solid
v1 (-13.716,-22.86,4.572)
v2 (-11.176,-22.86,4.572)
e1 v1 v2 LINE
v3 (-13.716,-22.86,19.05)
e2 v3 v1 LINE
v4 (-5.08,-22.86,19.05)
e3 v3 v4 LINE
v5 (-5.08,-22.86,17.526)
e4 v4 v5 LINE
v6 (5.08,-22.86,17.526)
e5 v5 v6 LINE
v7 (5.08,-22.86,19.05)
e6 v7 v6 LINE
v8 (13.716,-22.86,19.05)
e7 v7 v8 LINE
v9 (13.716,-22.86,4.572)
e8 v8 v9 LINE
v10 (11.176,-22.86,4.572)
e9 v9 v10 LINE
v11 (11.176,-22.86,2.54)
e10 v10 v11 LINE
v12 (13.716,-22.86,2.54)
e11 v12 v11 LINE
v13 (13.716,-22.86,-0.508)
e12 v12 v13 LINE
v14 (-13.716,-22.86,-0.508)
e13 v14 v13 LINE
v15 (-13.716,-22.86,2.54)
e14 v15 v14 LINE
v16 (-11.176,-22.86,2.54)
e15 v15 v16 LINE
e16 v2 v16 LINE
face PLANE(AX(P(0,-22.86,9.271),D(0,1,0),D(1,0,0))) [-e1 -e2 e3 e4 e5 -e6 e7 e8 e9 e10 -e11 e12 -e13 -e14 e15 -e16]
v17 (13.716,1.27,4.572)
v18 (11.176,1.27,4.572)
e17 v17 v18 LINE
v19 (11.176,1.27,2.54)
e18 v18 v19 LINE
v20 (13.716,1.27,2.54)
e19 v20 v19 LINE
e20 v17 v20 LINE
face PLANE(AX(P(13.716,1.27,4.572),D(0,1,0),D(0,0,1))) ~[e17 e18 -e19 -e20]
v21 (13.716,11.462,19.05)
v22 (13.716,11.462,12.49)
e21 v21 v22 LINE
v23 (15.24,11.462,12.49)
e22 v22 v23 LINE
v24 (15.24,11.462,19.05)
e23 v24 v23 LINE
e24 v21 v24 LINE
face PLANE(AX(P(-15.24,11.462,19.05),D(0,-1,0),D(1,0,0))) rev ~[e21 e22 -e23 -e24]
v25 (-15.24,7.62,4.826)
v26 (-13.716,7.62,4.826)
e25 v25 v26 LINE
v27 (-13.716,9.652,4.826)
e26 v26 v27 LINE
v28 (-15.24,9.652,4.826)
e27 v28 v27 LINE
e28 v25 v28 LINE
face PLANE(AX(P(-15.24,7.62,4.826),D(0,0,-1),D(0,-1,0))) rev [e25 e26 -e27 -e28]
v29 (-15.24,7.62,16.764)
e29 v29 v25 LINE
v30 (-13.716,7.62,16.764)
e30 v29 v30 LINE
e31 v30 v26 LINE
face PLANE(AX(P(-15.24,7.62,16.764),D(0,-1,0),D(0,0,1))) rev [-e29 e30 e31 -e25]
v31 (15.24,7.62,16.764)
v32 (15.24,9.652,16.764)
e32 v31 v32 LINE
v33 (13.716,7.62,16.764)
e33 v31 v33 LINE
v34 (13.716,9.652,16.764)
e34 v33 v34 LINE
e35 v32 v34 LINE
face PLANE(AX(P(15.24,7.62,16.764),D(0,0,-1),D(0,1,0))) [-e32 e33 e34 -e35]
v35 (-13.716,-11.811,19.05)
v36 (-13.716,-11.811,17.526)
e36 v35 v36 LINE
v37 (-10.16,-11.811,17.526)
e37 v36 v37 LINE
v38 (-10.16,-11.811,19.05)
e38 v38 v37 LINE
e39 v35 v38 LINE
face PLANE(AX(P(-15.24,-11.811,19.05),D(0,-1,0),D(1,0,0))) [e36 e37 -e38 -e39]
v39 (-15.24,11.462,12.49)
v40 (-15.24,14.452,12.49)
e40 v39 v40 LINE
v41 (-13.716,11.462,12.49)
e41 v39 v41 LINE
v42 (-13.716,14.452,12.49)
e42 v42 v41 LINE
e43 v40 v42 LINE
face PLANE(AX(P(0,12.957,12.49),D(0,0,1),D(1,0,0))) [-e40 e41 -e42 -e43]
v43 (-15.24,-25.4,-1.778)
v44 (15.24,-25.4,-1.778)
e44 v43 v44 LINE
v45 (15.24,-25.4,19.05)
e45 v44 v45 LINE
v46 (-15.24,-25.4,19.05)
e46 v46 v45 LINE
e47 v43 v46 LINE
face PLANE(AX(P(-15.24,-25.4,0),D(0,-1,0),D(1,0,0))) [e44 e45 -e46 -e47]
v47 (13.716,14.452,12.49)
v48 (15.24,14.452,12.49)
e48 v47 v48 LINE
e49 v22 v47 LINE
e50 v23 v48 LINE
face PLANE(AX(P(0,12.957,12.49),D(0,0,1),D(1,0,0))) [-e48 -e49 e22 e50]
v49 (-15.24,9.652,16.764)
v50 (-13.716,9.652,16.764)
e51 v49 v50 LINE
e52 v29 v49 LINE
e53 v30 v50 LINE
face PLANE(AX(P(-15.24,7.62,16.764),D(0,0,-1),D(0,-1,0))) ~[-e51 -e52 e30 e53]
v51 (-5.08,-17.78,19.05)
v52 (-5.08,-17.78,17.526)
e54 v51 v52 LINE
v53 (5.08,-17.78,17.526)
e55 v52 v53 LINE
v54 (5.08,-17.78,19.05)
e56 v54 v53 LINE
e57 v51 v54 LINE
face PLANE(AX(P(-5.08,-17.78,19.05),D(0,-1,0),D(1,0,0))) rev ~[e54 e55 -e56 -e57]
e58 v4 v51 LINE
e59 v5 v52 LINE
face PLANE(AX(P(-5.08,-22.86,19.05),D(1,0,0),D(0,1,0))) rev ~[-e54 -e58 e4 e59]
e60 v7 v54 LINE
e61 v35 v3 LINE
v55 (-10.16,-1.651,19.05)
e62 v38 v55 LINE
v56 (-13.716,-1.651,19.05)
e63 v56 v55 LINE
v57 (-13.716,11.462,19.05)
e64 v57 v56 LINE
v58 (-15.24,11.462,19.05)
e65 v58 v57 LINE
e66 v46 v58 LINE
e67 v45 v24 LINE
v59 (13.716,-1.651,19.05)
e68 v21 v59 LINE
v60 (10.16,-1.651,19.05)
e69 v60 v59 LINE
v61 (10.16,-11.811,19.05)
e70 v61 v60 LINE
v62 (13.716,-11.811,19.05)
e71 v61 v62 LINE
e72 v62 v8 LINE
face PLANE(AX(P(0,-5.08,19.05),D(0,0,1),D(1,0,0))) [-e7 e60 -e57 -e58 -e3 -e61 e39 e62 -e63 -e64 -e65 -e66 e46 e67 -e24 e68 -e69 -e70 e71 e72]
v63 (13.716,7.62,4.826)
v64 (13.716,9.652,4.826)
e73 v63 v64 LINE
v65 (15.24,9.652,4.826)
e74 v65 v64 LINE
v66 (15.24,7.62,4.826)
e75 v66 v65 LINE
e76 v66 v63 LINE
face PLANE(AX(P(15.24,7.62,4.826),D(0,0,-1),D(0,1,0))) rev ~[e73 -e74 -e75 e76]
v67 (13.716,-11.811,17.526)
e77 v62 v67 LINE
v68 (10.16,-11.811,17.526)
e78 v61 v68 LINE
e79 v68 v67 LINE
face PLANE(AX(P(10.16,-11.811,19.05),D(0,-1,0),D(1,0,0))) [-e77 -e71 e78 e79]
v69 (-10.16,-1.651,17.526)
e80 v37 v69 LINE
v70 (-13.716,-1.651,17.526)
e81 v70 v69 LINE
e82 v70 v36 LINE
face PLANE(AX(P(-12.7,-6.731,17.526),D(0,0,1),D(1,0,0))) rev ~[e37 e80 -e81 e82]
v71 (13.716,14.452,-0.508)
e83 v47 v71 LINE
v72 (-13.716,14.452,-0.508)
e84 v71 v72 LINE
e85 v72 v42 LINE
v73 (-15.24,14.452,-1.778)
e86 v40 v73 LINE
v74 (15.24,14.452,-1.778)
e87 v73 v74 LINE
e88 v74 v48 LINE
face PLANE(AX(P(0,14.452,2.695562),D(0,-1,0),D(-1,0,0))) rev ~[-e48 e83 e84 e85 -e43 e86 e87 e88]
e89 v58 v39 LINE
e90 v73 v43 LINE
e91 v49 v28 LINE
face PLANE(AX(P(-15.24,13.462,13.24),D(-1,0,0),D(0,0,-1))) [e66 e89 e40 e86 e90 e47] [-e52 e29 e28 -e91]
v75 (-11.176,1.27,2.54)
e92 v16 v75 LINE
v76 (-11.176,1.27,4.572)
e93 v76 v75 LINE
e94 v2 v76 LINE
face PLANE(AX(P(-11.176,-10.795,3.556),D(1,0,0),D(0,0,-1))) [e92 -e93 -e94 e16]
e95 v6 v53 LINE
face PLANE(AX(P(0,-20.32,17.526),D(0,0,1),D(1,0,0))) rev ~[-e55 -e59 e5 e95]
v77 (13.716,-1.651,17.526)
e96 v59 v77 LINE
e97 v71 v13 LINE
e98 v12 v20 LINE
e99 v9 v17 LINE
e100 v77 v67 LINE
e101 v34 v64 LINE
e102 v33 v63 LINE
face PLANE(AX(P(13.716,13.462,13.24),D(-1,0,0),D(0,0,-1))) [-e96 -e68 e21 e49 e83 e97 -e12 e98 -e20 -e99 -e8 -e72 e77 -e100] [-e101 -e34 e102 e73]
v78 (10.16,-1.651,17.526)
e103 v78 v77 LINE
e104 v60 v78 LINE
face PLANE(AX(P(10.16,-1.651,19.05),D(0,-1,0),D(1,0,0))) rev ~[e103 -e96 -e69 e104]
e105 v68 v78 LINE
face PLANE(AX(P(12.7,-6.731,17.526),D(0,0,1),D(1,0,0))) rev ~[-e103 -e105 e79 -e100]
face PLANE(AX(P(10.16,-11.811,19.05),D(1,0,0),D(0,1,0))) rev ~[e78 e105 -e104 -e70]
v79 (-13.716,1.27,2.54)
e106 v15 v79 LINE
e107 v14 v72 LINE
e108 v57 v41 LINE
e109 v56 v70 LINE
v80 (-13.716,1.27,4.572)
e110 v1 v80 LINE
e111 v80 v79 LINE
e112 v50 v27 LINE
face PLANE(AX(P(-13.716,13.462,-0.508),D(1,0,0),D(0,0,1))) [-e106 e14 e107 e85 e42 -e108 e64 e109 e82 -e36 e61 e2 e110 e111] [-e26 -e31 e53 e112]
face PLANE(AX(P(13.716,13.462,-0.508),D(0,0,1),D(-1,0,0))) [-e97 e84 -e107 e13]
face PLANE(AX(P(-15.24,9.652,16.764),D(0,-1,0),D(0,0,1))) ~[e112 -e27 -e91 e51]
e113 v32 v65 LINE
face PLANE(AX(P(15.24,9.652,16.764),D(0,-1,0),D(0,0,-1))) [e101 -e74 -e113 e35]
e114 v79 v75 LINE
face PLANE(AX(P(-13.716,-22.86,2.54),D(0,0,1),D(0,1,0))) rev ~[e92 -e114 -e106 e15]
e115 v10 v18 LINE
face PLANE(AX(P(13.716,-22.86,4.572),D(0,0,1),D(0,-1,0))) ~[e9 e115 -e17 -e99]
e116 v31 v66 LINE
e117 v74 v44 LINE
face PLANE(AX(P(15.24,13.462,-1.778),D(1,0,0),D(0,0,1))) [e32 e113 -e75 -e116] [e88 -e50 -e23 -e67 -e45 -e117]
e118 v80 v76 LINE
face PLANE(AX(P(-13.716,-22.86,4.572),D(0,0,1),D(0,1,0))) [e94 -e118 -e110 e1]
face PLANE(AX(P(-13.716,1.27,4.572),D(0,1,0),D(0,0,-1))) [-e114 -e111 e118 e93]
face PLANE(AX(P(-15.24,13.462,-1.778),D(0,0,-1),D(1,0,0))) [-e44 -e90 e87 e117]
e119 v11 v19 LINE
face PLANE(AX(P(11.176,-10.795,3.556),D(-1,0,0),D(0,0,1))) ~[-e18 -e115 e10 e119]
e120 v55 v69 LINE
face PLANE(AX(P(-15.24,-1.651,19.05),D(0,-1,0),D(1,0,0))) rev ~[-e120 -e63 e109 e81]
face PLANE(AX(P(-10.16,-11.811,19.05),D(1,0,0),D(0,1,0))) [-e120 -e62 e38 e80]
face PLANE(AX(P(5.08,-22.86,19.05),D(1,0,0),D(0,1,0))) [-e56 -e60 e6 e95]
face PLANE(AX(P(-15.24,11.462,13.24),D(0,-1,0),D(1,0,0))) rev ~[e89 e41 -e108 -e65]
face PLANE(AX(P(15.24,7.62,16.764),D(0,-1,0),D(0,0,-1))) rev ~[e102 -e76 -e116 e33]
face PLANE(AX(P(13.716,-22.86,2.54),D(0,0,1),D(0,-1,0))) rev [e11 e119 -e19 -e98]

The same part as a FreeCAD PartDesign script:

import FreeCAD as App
import Part
import Sketcher
Q = App.Units.Quantity


def add_polygon(sketch, points):
    """Adds a closed chain of lines whose ends are joined by coincident constraints."""
    first, n = sketch.GeometryCount, len(points)
    for a, b in zip(points, points[1:] + points[:1]):
        sketch.addGeometry(Part.LineSegment(App.Vector(*a, 0), App.Vector(*b, 0)), False)
    for i in range(n):
        sketch.addConstraint(Sketcher.Constraint("Coincident", first + i, 2, first + (i + 1) % n, 1))

doc = App.newDocument("Part")
params = doc.addObject("Spreadsheet::Sheet", "Params")
for row, (alias, value) in enumerate([
    ("sketch1_width", "1.2 in"),
    ("sketch1_height", "1.6 in"),
    ("pad1_length", "0.75 in"),
    ("pad1_length2", "0.07 in"),
    ("sketch2_width", "1.08 in"),
    ("sketch2_height", "0.77 in"),
    ("pocket1_length", "1.5 in"),
    ("sketch3_width", "0.2 in"),
    ("sketch3_width2", "0.4 in"),
    ("pad2_length", "0.06 in"),
    ("sketch4_width", "0.95 in"),
    ("sketch4_height", "0.08 in"),
    ("pad3_length", "0.1 in"),
    ("sketch5_width", "0.08 in"),
    ("sketch5_height", "0.47 in"),
    ("pocket2_length", "0.06 in"),
    ("sketch6_width", "1.2 in"),
    ("sketch6_height", "0.07 in"),
    ("sketch7_width", "1.2 in"),
    ("pocket4_length", "5.81 mm"),
    ("sketch8_width", "1.2 in"),
    ("sketch8_width2", "0.06 in"),
    ("pad4_length", "0.99 mm"),
    ("sketch9_width", "1.2 in"),
    ("pocket5_length", "0.75 mm"),
], start=1):
    params.set(f"A{row}", alias)
    params.set(f"B{row}", "=" + value)
    params.setAlias(f"B{row}", alias)

body = doc.addObject("PartDesign::Body", "Body")

# Sketch on XY plane
sketch1 = body.newObject("Sketcher::SketchObject", "Sketch")
sketch1.AttachmentSupport = (doc.getObject("XY_Plane"), [""])
sketch1.MapMode = "FlatFace"
add_polygon(sketch1, [(-15.24, 15.24), (-15.24, -25.4), (15.24, -25.4), (15.24, 15.24)])  # lines 0-3
sketch1.addConstraint([
    Sketcher.Constraint("Vertical", 0),
    Sketcher.Constraint("Horizontal", 1),
    Sketcher.Constraint("Vertical", 2),
    Sketcher.Constraint("Horizontal", 3),
    Sketcher.Constraint("DistanceX", 1, 1, 1, 2, Q("1.2 in")),
    Sketcher.Constraint("DistanceY", 0, 2, 0, 1, Q("1.6 in")),
    Sketcher.Constraint("DistanceY", 0, 2, -1, 1, Q("1 in")),
    Sketcher.Constraint("DistanceX", 0, 2, -1, 1, Q("0.6 in")),
])
sketch1.setExpression("Constraints[8]", "Params.sketch1_width")
sketch1.setExpression("Constraints[9]", "Params.sketch1_height")
pad1 = body.newObject("PartDesign::Pad", "Pad")
pad1.Profile = sketch1
pad1.Type = "TwoLengths"
pad1.setExpression("Length", "Params.pad1_length")
pad1.setExpression("Length2", "Params.pad1_length2")

# Sketch on XZ plane
sketch2 = body.newObject("Sketcher::SketchObject", "Sketch001")
sketch2.AttachmentSupport = (doc.getObject("XZ_Plane"), [""])
sketch2.MapMode = "FlatFace"
sketch2.AttachmentOffset = App.Placement(App.Vector(0, 0, -0.6 * 25.4), App.Rotation())
add_polygon(sketch2, [(-13.716, -0.508), (-13.716, 19.05), (13.716, 19.05), (13.716, -0.508)])  # lines 0-3
sketch2.addConstraint([
    Sketcher.Constraint("Vertical", 0),
    Sketcher.Constraint("Horizontal", 1),
    Sketcher.Constraint("Vertical", 2),
    Sketcher.Constraint("Horizontal", 3),
    Sketcher.Constraint("DistanceX", 1, 1, 1, 2, Q("1.08 in")),
    Sketcher.Constraint("DistanceY", 0, 1, 0, 2, Q("0.77 in")),
    Sketcher.Constraint("DistanceX", 0, 2, -1, 1, Q("0.54 in")),
    Sketcher.Constraint("DistanceY", -1, 1, 0, 2, Q("0.75 in")),
])
sketch2.setExpression("Constraints[8]", "Params.sketch2_width")
sketch2.setExpression("Constraints[9]", "Params.sketch2_height")
pocket1 = body.newObject("PartDesign::Pocket", "Pocket")
pocket1.Profile = sketch2
pocket1.setExpression("Length", "Params.pocket1_length")
pocket1.Reversed = True

# Sketch on XY plane
sketch3 = body.newObject("Sketcher::SketchObject", "Sketch002")
sketch3.AttachmentSupport = (doc.getObject("XY_Plane"), [""])
sketch3.MapMode = "FlatFace"
sketch3.AttachmentOffset = App.Placement(App.Vector(0, 0, 0.75 * 25.4), App.Rotation())
add_polygon(sketch3, [(-15.24, -1.651), (-15.24, -11.811), (-10.16, -11.811), (-10.16, -1.651)])  # lines 0-3
add_polygon(sketch3, [(10.16, -1.651), (10.16, -11.811), (15.24, -11.811), (15.24, -1.651)])  # lines 4-7
add_polygon(sketch3, [(-5.08, -17.78), (-5.08, -22.86), (5.08, -22.86), (5.08, -17.78)])  # lines 8-11
sketch3.addConstraint([
    Sketcher.Constraint("Vertical", 0),
    Sketcher.Constraint("Horizontal", 1),
    Sketcher.Constraint("Vertical", 2),
    Sketcher.Constraint("Horizontal", 3),
    Sketcher.Constraint("Vertical", 4),
    Sketcher.Constraint("Horizontal", 5),
    Sketcher.Constraint("Vertical", 6),
    Sketcher.Constraint("Horizontal", 7),
    Sketcher.Constraint("Vertical", 8),
    Sketcher.Constraint("Horizontal", 9),
    Sketcher.Constraint("Vertical", 10),
    Sketcher.Constraint("Horizontal", 11),
    Sketcher.Constraint("Symmetric", 1, 2, 4, 2, -2),
    Sketcher.Constraint("Symmetric", 3, 2, 6, 2, -2),
    Sketcher.Constraint("Equal", 11, 0),
    Sketcher.Constraint("Equal", 7, 8),
    Sketcher.Constraint("DistanceX", 1, 1, 1, 2, Q("0.2 in")),
    Sketcher.Constraint("DistanceX", 9, 1, 9, 2, Q("0.4 in")),
    Sketcher.Constraint("DistanceX", 0, 2, 4, 2, Q("1 in")),
    Sketcher.Constraint("DistanceX", 8, 2, -1, 1, Q("0.2 in")),
    Sketcher.Constraint("DistanceY", 8, 2, -1, 1, Q("0.9 in")),
    Sketcher.Constraint("DistanceY", 0, 2, -1, 1, Q("0.465 in")),
])
sketch3.setExpression("Constraints[28]", "Params.sketch3_width")
sketch3.setExpression("Constraints[29]", "Params.sketch3_width2")
pad2 = body.newObject("PartDesign::Pad", "Pad001")
pad2.Profile = sketch3
pad2.setExpression("Length", "Params.pad2_length")
pad2.Reversed = True

# Sketch on YZ plane
sketch4 = body.newObject("Sketcher::SketchObject", "Sketch003")
sketch4.AttachmentSupport = (doc.getObject("YZ_Plane"), [""])
sketch4.MapMode = "FlatFace"
sketch4.AttachmentOffset = App.Placement(App.Vector(0, 0, -0.54 * 25.4), App.Rotation())
add_polygon(sketch4, [(1.27, 4.572), (-22.86, 4.572), (-22.86, 2.54), (1.27, 2.54)])  # lines 0-3
sketch4.addConstraint([
    Sketcher.Constraint("Horizontal", 0),
    Sketcher.Constraint("Vertical", 1),
    Sketcher.Constraint("Horizontal", 2),
    Sketcher.Constraint("Vertical", 3),
    Sketcher.Constraint("DistanceX", 0, 2, 0, 1, Q("0.95 in")),
    Sketcher.Constraint("DistanceY", 1, 2, 1, 1, Q("0.08 in")),
    Sketcher.Constraint("DistanceX", 0, 2, -1, 1, Q("0.9 in")),
    Sketcher.Constraint("DistanceY", -1, 1, 1, 2, Q("0.1 in")),
])
sketch4.setExpression("Constraints[8]", "Params.sketch4_width")
sketch4.setExpression("Constraints[9]", "Params.sketch4_height")
pad3 = body.newObject("PartDesign::Pad", "Pad002")
pad3.Profile = sketch4
pad3.setExpression("Length", "Params.pad3_length")
doc.recompute()

mirrored = body.newObject("PartDesign::Mirrored", "Mirrored")
mirrored.Originals = [pad3]
mirrored.MirrorPlane = (doc.getObject("YZ_Plane"), [""])
body.Tip = mirrored

# Sketch on YZ plane
sketch5 = body.newObject("Sketcher::SketchObject", "Sketch004")
sketch5.AttachmentSupport = (doc.getObject("YZ_Plane"), [""])
sketch5.MapMode = "FlatFace"
sketch5.AttachmentOffset = App.Placement(App.Vector(0, 0, 0.6 * 25.4), App.Rotation())
add_polygon(sketch5, [(9.652, 16.764), (7.62, 16.764), (7.62, 4.826), (9.652, 4.826)])  # lines 0-3
sketch5.addConstraint([
    Sketcher.Constraint("Horizontal", 0),
    Sketcher.Constraint("Vertical", 1),
    Sketcher.Constraint("Horizontal", 2),
    Sketcher.Constraint("Vertical", 3),
    Sketcher.Constraint("DistanceX", 0, 2, 0, 1, Q("0.08 in")),
    Sketcher.Constraint("DistanceY", 1, 2, 1, 1, Q("0.47 in")),
    Sketcher.Constraint("DistanceX", -1, 1, 0, 2, Q("0.3 in")),
    Sketcher.Constraint("DistanceY", -1, 1, 0, 2, Q("0.66 in")),
])
sketch5.setExpression("Constraints[8]", "Params.sketch5_width")
sketch5.setExpression("Constraints[9]", "Params.sketch5_height")
pocket2 = body.newObject("PartDesign::Pocket", "Pocket001")
pocket2.Profile = sketch5
pocket2.setExpression("Length", "Params.pocket2_length")
doc.recompute()

mirrored2 = body.newObject("PartDesign::Mirrored", "Mirrored001")
mirrored2.Originals = [pocket2]
mirrored2.MirrorPlane = (doc.getObject("YZ_Plane"), [""])
body.Tip = mirrored2

# Sketch on XY plane
sketch6 = body.newObject("Sketcher::SketchObject", "Sketch005")
sketch6.AttachmentSupport = (doc.getObject("XY_Plane"), [""])
sketch6.MapMode = "FlatFace"
sketch6.AttachmentOffset = App.Placement(App.Vector(0, 0, 0.75 * 25.4), App.Rotation())
add_polygon(sketch6, [(-15.24, 15.24), (-15.24, 13.462), (15.24, 13.462), (15.24, 15.24)])  # lines 0-3
sketch6.addConstraint([
    Sketcher.Constraint("Vertical", 0),
    Sketcher.Constraint("Horizontal", 1),
    Sketcher.Constraint("Vertical", 2),
    Sketcher.Constraint("Horizontal", 3),
    Sketcher.Constraint("DistanceX", 1, 1, 1, 2, Q("1.2 in")),
    Sketcher.Constraint("DistanceY", 0, 2, 0, 1, Q("0.07 in")),
    Sketcher.Constraint("DistanceX", 0, 2, -1, 1, Q("0.6 in")),
    Sketcher.Constraint("DistanceY", -1, 1, 2, 2, Q("0.6 in")),
])
sketch6.setExpression("Constraints[8]", "Params.sketch6_width")
sketch6.setExpression("Constraints[9]", "Params.sketch6_height")
pocket3 = body.newObject("PartDesign::Pocket", "Pocket002")
pocket3.Profile = sketch6
pocket3.Type = "ThroughAll"

# Sketch on XY plane
sketch7 = body.newObject("Sketcher::SketchObject", "Sketch006")
sketch7.AttachmentSupport = (doc.getObject("XY_Plane"), [""])
sketch7.MapMode = "FlatFace"
sketch7.AttachmentOffset = App.Placement(App.Vector(0, 0, 0.75 * 25.4), App.Rotation())
add_polygon(sketch7, [(-15.24, 13.462), (-15.24, 11.462), (15.24, 11.462), (15.24, 13.462)])  # lines 0-3
sketch7.addConstraint([
    Sketcher.Constraint("Vertical", 0),
    Sketcher.Constraint("Horizontal", 1),
    Sketcher.Constraint("Vertical", 2),
    Sketcher.Constraint("Horizontal", 3),
    Sketcher.Constraint("DistanceX", 1, 1, 1, 2, Q("1.2 in")),
    Sketcher.Constraint("DistanceX", 0, 2, -1, 1, Q("0.6 in")),
    Sketcher.Constraint("DistanceY", -1, 1, 2, 2, Q("0.53 in")),
    Sketcher.Constraint("DistanceY", 0, 2, 0, 1, 2.0),
])
sketch7.setExpression("Constraints[8]", "Params.sketch7_width")
pocket4 = body.newObject("PartDesign::Pocket", "Pocket003")
pocket4.Profile = sketch7
pocket4.setExpression("Length", "Params.pocket4_length")

# Sketch on XZ plane
sketch8 = body.newObject("Sketcher::SketchObject", "Sketch007")
sketch8.AttachmentSupport = (doc.getObject("XZ_Plane"), [""])
sketch8.MapMode = "FlatFace"
sketch8.AttachmentOffset = App.Placement(App.Vector(0, 0, -0.53 * 25.4), App.Rotation())
add_polygon(sketch8, [(-15.24, -1.778), (-15.24, 13.24), (-13.716, 13.24), (-13.716, -0.508), (13.716, -0.508), (13.716, 13.24), (15.24, 13.24), (15.24, -1.778)])  # lines 0-7
sketch8.addConstraint([
    Sketcher.Constraint("Vertical", 0),
    Sketcher.Constraint("Horizontal", 1),
    Sketcher.Constraint("Vertical", 2),
    Sketcher.Constraint("Horizontal", 3),
    Sketcher.Constraint("Vertical", 4),
    Sketcher.Constraint("Horizontal", 5),
    Sketcher.Constraint("Vertical", 6),
    Sketcher.Constraint("Horizontal", 7),
    Sketcher.Constraint("Symmetric", 1, 2, 4, 2, -2),
    Sketcher.Constraint("Equal", 1, 5),
    Sketcher.Constraint("DistanceX", 7, 2, 7, 1, Q("1.2 in")),
    Sketcher.Constraint("DistanceX", 1, 1, 1, 2, Q("0.06 in")),
    Sketcher.Constraint("DistanceY", 2, 2, -1, 1, Q("0.02 in")),
    Sketcher.Constraint("DistanceY", 6, 2, -1, 1, Q("0.07 in")),
    Sketcher.Constraint("DistanceY", 0, 1, 0, 2, 15.018),
])
sketch8.setExpression("Constraints[18]", "Params.sketch8_width")
sketch8.setExpression("Constraints[19]", "Params.sketch8_width2")
pad4 = body.newObject("PartDesign::Pad", "Pad003")
pad4.Profile = sketch8
pad4.setExpression("Length", "Params.pad4_length")
pad4.Reversed = True

# Sketch on XY plane
sketch9 = body.newObject("Sketcher::SketchObject", "Sketch008")
sketch9.AttachmentSupport = (doc.getObject("XY_Plane"), [""])
sketch9.MapMode = "FlatFace"
sketch9.AttachmentOffset = App.Placement(App.Vector(0, 0, 13.24), App.Rotation())
add_polygon(sketch9, [(-15.24, 14.452), (-15.24, 11.462), (15.24, 11.462), (15.24, 14.452)])  # lines 0-3
sketch9.addConstraint([
    Sketcher.Constraint("Vertical", 0),
    Sketcher.Constraint("Horizontal", 1),
    Sketcher.Constraint("Vertical", 2),
    Sketcher.Constraint("Horizontal", 3),
    Sketcher.Constraint("DistanceX", 1, 1, 1, 2, Q("1.2 in")),
    Sketcher.Constraint("DistanceX", 0, 2, -1, 1, Q("0.6 in")),
    Sketcher.Constraint("DistanceY", 0, 2, 0, 1, 2.99),
    Sketcher.Constraint("DistanceY", -1, 1, 0, 2, 11.462),
])
sketch9.setExpression("Constraints[8]", "Params.sketch9_width")
pocket5 = body.newObject("PartDesign::Pocket", "Pocket004")
pocket5.Profile = sketch9
pocket5.setExpression("Length", "Params.pocket5_length")

doc.recompute()
